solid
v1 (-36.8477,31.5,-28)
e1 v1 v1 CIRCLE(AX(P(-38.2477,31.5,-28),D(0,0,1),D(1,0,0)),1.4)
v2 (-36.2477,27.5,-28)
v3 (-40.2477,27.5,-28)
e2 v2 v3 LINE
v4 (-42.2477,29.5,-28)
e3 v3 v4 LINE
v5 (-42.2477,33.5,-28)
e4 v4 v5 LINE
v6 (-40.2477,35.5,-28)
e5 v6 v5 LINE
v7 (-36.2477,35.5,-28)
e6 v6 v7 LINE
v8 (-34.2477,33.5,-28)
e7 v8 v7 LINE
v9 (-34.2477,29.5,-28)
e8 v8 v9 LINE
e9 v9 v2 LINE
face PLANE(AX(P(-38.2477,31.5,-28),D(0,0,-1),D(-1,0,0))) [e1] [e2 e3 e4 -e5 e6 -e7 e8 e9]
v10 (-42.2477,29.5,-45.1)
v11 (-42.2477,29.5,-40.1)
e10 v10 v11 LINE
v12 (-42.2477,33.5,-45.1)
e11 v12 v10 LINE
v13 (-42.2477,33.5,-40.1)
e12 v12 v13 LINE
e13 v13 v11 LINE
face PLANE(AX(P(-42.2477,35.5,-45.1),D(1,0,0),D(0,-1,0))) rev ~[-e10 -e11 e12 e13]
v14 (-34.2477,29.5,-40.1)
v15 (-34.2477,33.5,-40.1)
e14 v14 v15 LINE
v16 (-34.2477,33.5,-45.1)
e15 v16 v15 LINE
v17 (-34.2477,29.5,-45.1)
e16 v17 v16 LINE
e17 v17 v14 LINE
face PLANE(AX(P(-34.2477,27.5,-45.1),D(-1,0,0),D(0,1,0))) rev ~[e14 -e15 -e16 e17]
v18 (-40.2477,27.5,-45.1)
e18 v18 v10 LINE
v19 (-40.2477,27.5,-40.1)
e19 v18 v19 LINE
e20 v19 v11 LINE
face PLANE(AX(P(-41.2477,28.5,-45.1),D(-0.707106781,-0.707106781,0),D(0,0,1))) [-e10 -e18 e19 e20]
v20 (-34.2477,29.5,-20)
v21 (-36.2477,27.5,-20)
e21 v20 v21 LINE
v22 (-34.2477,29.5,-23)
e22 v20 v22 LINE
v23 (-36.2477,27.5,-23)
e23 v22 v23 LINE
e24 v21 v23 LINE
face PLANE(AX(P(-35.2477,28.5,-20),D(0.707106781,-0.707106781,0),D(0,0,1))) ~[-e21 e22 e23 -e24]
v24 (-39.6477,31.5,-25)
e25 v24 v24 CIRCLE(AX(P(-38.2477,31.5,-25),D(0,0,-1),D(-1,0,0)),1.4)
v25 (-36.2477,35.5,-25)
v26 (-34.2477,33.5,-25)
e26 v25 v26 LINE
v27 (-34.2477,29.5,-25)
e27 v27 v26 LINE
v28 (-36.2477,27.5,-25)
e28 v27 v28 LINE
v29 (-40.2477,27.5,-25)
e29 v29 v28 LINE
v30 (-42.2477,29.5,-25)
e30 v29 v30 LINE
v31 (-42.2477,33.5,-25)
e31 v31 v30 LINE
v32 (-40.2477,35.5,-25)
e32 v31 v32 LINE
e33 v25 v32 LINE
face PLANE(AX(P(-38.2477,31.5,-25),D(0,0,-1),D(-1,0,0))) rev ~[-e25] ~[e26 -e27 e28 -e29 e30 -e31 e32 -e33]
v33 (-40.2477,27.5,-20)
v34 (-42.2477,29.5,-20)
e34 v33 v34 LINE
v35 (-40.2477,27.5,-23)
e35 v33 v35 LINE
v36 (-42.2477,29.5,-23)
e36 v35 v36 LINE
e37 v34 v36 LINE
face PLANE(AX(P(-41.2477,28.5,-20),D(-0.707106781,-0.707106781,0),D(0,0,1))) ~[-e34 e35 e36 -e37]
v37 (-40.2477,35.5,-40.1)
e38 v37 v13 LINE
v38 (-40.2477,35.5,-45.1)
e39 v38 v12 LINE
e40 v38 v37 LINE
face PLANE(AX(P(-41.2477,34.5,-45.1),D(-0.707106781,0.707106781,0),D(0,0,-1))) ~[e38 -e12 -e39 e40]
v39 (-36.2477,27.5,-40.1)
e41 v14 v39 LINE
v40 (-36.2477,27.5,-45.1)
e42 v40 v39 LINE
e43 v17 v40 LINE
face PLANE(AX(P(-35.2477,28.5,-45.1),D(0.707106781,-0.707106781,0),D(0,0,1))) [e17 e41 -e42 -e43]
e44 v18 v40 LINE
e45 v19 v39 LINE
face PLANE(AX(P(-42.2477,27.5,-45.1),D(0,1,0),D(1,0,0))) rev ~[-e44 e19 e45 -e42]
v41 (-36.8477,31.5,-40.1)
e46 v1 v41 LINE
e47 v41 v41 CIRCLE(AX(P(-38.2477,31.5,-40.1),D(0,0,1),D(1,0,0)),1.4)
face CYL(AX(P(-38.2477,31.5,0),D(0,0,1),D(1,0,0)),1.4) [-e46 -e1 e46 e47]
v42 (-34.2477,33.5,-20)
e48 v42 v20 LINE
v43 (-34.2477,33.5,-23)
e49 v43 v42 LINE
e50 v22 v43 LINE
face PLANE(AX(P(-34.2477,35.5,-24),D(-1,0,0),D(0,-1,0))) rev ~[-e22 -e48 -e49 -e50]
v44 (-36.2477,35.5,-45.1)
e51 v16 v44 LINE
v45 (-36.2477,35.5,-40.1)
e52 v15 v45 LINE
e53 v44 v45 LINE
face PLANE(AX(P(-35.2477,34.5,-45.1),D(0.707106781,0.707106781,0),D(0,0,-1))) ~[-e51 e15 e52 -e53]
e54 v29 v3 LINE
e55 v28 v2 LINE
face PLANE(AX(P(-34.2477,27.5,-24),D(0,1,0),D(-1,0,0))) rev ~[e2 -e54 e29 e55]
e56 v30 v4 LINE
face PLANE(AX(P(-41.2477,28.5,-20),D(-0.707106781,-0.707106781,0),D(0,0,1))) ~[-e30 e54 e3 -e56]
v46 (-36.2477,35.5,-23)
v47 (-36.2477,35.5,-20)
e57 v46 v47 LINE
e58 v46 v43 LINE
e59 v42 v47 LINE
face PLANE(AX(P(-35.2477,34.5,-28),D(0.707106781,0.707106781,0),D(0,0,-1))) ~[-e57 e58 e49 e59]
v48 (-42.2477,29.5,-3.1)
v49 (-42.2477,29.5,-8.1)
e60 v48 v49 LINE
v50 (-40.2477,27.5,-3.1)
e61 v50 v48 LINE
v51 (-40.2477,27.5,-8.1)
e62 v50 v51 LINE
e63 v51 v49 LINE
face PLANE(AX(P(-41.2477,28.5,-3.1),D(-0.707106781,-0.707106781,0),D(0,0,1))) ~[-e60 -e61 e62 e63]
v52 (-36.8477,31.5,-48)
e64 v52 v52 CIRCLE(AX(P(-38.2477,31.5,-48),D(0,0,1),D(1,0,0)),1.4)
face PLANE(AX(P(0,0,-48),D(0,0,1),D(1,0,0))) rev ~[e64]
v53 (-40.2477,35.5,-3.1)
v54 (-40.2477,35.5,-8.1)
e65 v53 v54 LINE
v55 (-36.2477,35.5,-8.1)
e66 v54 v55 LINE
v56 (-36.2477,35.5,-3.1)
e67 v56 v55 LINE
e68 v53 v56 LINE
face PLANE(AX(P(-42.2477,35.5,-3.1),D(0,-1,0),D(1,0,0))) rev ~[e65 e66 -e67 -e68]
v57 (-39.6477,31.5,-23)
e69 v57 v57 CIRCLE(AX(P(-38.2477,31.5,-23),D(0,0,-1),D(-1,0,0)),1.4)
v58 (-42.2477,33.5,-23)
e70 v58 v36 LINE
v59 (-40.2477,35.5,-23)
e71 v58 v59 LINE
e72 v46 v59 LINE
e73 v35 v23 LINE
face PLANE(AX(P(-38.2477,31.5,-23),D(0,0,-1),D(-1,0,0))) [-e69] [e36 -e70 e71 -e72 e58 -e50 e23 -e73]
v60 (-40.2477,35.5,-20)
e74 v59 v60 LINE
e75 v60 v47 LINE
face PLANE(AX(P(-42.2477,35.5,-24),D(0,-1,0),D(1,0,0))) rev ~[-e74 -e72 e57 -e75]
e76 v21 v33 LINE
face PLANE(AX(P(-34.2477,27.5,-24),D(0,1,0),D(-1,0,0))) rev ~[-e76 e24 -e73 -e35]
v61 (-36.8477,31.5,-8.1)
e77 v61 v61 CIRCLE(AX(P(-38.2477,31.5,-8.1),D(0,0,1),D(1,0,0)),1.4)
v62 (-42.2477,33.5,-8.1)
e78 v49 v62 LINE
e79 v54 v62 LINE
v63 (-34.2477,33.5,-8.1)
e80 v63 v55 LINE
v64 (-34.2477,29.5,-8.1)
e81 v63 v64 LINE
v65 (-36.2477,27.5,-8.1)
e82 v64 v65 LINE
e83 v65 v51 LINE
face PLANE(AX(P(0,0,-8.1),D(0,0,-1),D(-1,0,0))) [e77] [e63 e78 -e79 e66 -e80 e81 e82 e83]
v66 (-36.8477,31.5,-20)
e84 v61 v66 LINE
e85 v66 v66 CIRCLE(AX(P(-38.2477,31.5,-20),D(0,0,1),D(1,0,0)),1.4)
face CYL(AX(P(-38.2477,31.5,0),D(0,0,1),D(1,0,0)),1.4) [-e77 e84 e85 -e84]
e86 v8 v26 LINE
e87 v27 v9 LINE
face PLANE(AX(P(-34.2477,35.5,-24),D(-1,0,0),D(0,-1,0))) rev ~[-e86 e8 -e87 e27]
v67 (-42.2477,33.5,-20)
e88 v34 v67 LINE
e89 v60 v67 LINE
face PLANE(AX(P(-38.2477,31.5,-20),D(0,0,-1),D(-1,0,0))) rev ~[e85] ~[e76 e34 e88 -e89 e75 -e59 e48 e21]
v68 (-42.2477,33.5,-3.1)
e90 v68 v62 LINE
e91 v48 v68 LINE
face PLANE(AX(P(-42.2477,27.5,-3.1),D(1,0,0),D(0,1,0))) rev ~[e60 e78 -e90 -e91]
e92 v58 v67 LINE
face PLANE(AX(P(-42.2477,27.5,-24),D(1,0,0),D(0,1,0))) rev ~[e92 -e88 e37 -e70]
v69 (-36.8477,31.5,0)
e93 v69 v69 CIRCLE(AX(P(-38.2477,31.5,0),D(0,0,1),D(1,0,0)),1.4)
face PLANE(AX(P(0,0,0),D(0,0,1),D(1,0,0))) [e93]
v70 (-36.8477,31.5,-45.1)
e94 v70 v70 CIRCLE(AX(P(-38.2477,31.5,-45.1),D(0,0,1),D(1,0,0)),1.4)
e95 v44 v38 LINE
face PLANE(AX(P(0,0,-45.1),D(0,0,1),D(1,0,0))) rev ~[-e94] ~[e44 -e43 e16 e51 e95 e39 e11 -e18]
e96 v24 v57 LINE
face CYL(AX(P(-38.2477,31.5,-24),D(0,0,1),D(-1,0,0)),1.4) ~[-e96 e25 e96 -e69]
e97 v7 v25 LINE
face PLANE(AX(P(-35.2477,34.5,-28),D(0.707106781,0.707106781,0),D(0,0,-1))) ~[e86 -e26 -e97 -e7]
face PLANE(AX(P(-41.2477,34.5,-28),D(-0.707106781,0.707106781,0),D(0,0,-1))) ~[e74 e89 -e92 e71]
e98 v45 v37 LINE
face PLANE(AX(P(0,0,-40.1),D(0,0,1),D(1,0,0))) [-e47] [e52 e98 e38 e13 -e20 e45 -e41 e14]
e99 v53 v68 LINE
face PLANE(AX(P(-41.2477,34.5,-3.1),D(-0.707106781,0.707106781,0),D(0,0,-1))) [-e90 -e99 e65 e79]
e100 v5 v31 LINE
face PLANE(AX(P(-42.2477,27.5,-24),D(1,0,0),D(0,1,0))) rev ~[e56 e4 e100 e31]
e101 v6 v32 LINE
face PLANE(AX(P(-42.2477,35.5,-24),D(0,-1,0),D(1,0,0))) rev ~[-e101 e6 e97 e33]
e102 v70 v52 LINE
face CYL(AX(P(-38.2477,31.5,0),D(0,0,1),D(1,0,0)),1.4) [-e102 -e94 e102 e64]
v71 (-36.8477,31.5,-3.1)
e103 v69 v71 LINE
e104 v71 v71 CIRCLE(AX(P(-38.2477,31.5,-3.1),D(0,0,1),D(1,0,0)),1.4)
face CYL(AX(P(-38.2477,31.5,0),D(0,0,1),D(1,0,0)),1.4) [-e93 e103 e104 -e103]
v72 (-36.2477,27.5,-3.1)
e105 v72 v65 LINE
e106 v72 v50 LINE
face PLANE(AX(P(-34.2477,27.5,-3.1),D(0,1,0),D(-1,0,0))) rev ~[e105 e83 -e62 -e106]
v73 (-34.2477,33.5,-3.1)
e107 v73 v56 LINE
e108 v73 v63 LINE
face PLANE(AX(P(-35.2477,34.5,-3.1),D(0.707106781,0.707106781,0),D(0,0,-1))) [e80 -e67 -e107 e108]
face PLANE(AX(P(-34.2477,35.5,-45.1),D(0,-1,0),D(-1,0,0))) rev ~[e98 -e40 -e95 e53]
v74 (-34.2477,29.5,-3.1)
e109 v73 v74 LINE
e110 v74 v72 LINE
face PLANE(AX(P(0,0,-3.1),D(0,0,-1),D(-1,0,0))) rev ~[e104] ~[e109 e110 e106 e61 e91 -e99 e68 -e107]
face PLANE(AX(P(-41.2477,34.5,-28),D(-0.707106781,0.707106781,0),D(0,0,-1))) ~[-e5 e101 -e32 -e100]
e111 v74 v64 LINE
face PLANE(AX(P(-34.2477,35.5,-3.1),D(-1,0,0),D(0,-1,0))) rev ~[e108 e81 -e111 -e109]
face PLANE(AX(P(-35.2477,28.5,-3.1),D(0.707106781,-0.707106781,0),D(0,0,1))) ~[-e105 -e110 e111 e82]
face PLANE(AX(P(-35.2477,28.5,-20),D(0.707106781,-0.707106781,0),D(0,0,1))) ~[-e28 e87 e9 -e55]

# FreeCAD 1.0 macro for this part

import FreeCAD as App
import Part
import Sketcher
from FreeCAD import Vector
Q = App.Units.Quantity


def edges_at(feature, points):
    """Names of the edges that pass closest to the given points."""
    edges = feature.Shape.Edges
    near = lambda p: min(range(len(edges)), key=lambda i: edges[i].distToShape(Part.Vertex(*p))[0])
    return sorted({f"Edge{near(p) + 1}" for p in points})

doc = App.newDocument("Part")
body = doc.addObject("PartDesign::Body", "Body")

# Sketch on XY plane
sketch1 = body.newObject("Sketcher::SketchObject", "Sketch")
sketch1.AttachmentSupport = (doc.getObject("XY_Plane"), [""])
sketch1.MapMode = "FlatFace"
sketch1.addGeometry(Part.Circle(Vector(-38.2, 31.5, 0), Vector(0, 0, 1), 1.4), False)
sketch1.addConstraint([
    Sketcher.Constraint("Diameter", 0, Q("2.8 mm")),
    Sketcher.Constraint("DistanceY", -1, 1, 0, 3, Q("31.5 mm")),
    Sketcher.Constraint("DistanceX", 0, 3, -1, 1, Q("38.2477 mm")),
])
pad1 = body.newObject("PartDesign::Pad", "Pad")
pad1.Profile = sketch1
pad1.Length = 48
pad1.Reversed = True

# Sketch on XY plane
sketch2 = body.newObject("Sketcher::SketchObject", "Sketch001")
sketch2.AttachmentSupport = (doc.getObject("XY_Plane"), [""])
sketch2.MapMode = "FlatFace"
sketch2.AttachmentOffset = App.Placement(Vector(0, 0, -45.1), App.Rotation())
sketch2.addGeometry([
    Part.LineSegment(Vector(-34, 28, 0), Vector(-34, 36, 0)),
    Part.LineSegment(Vector(-34, 36, 0), Vector(-42, 36, 0)),
    Part.LineSegment(Vector(-42, 36, 0), Vector(-42, 28, 0)),
    Part.LineSegment(Vector(-42, 28, 0), Vector(-34, 28, 0)),
], False)
sketch2.addConstraint([
    Sketcher.Constraint("Coincident", 0, 2, 1, 1),
    Sketcher.Constraint("Coincident", 1, 2, 2, 1),
    Sketcher.Constraint("Coincident", 2, 2, 3, 1),
    Sketcher.Constraint("Coincident", 3, 2, 0, 1),
    Sketcher.Constraint("Vertical", 0),
    Sketcher.Constraint("Horizontal", 1),
    Sketcher.Constraint("Vertical", 2),
    Sketcher.Constraint("Horizontal", 3),
    Sketcher.Constraint("Equal", 3, 0),
    Sketcher.Constraint("DistanceX", 1, 2, 1, 1, Q("8 mm")),
    Sketcher.Constraint("DistanceY", -1, 1, 0, 2, Q("35.5 mm")),
    Sketcher.Constraint("DistanceX", 0, 2, -1, 1, Q("34.2477 mm")),
])
pad2 = body.newObject("PartDesign::Pad", "Pad001")
pad2.Profile = sketch2
pad2.Length = 5
doc.recompute()

chamfer = body.newObject("PartDesign::Chamfer", "Chamfer")
chamfer.Base = (pad2, edges_at(pad2, [
    (-42.248, 35.5, -42.6),
    (-34.248, 35.5, -42.6),
    (-34.248, 27.5, -42.6),
    (-42.248, 27.5, -42.6),
]))
chamfer.Size = 2

# Sketch on XY plane
sketch3 = body.newObject("Sketcher::SketchObject", "Sketch002")
sketch3.AttachmentSupport = (doc.getObject("XY_Plane"), [""])
sketch3.MapMode = "FlatFace"
sketch3.AttachmentOffset = App.Placement(Vector(0, 0, -3.1), App.Rotation())
sketch3.addGeometry([
    Part.LineSegment(Vector(-34, 36, 0), Vector(-34, 28, 0)),
    Part.LineSegment(Vector(-34, 28, 0), Vector(-42, 28, 0)),
    Part.LineSegment(Vector(-42, 28, 0), Vector(-42, 36, 0)),
    Part.LineSegment(Vector(-42, 36, 0), Vector(-34, 36, 0)),
], False)
sketch3.addConstraint([
    Sketcher.Constraint("Coincident", 0, 2, 1, 1),
    Sketcher.Constraint("Coincident", 1, 2, 2, 1),
    Sketcher.Constraint("Coincident", 2, 2, 3, 1),
    Sketcher.Constraint("Coincident", 3, 2, 0, 1),
    Sketcher.Constraint("Vertical", 0),
    Sketcher.Constraint("Horizontal", 1),
    Sketcher.Constraint("Vertical", 2),
    Sketcher.Constraint("Horizontal", 3),
    Sketcher.Constraint("Equal", 3, 0),
    Sketcher.Constraint("DistanceX", 1, 2, 1, 1, Q("8 mm")),
    Sketcher.Constraint("DistanceY", -1, 1, 0, 2, Q("27.5 mm")),
    Sketcher.Constraint("DistanceX", 0, 2, -1, 1, Q("34.2477 mm")),
])
pad3 = body.newObject("PartDesign::Pad", "Pad002")
pad3.Profile = sketch3
pad3.Length = 5
pad3.Reversed = True
doc.recompute()

chamfer2 = body.newObject("PartDesign::Chamfer", "Chamfer001")
chamfer2.Base = (pad3, edges_at(pad3, [
    (-42.248, 35.5, -5.6),
    (-34.248, 35.5, -5.6),
    (-34.248, 27.5, -5.6),
    (-42.248, 27.5, -5.6),
]))
chamfer2.Size = 2

# Sketch on XY plane
sketch4 = body.newObject("Sketcher::SketchObject", "Sketch003")
sketch4.AttachmentSupport = (doc.getObject("XY_Plane"), [""])
sketch4.MapMode = "FlatFace"
sketch4.AttachmentOffset = App.Placement(Vector(0, 0, -24), App.Rotation())
sketch4.addGeometry([
    Part.LineSegment(Vector(-34, 36, 0), Vector(-34, 28, 0)),
    Part.LineSegment(Vector(-34, 28, 0), Vector(-42, 28, 0)),
    Part.LineSegment(Vector(-42, 28, 0), Vector(-42, 36, 0)),
    Part.LineSegment(Vector(-42, 36, 0), Vector(-34, 36, 0)),
], False)
sketch4.addConstraint([
    Sketcher.Constraint("Coincident", 0, 2, 1, 1),
    Sketcher.Constraint("Coincident", 1, 2, 2, 1),
    Sketcher.Constraint("Coincident", 2, 2, 3, 1),
    Sketcher.Constraint("Coincident", 3, 2, 0, 1),
    Sketcher.Constraint("Vertical", 0),
    Sketcher.Constraint("Horizontal", 1),
    Sketcher.Constraint("Vertical", 2),
    Sketcher.Constraint("Horizontal", 3),
    Sketcher.Constraint("Equal", 3, 0),
    Sketcher.Constraint("DistanceX", 1, 2, 1, 1, Q("8 mm")),
    Sketcher.Constraint("DistanceY", -1, 1, 0, 2, Q("27.5 mm")),
    Sketcher.Constraint("DistanceX", 0, 2, -1, 1, Q("34.2477 mm")),
])
pad4 = body.newObject("PartDesign::Pad", "Pad003")
pad4.Profile = sketch4
pad4.Length = 8
pad4.Midplane = True
doc.recompute()

chamfer3 = body.newObject("PartDesign::Chamfer", "Chamfer002")
chamfer3.Base = (pad4, edges_at(pad4, [
    (-42.248, 35.5, -24),
    (-42.248, 27.5, -24),
    (-34.248, 35.5, -24),
    (-34.248, 27.5, -24),
]))
chamfer3.Size = 2

# Sketch on XY plane
sketch5 = body.newObject("Sketcher::SketchObject", "Sketch004")
sketch5.AttachmentSupport = (doc.getObject("XY_Plane"), [""])
sketch5.MapMode = "FlatFace"
sketch5.AttachmentOffset = App.Placement(Vector(0, 0, -24), App.Rotation())
sketch5.addGeometry([
    Part.LineSegment(Vector(-42.2, 35.5, 0), Vector(-34.2, 35.5, 0)),  # 0
    Part.LineSegment(Vector(-34.2, 35.5, 0), Vector(-34.2, 27.5, 0)),  # 1
    Part.LineSegment(Vector(-34.2, 27.5, 0), Vector(-42.2, 27.5, 0)),  # 2
    Part.LineSegment(Vector(-42.2, 27.5, 0), Vector(-42.2, 35.5, 0)),  # 3
    Part.Circle(Vector(-38.2, 31.5, 0), Vector(0, 0, 1), 1.4),  # 4
], False)
sketch5.addConstraint([
    Sketcher.Constraint("Coincident", 0, 2, 1, 1),
    Sketcher.Constraint("Coincident", 1, 2, 2, 1),
    Sketcher.Constraint("Coincident", 2, 2, 3, 1),
    Sketcher.Constraint("Coincident", 3, 2, 0, 1),
    Sketcher.Constraint("Horizontal", 0),
    Sketcher.Constraint("Vertical", 1),
    Sketcher.Constraint("Horizontal", 2),
    Sketcher.Constraint("Vertical", 3),
    Sketcher.Constraint("Equal", 2, 1),
    Sketcher.Constraint("DistanceX", 0, 1, 0, 2, Q("8 mm")),
    Sketcher.Constraint("Diameter", 4, Q("2.8 mm")),
    Sketcher.Constraint("DistanceX", 4, 3, 0, 2, Q("4 mm")),
    Sketcher.Constraint("DistanceY", 4, 3, 0, 2, Q("4 mm")),
    Sketcher.Constraint("DistanceY", -1, 1, 4, 3, Q("31.5 mm")),
    Sketcher.Constraint("DistanceX", 4, 3, -1, 1, Q("38.2477 mm")),
])
pocket1 = body.newObject("PartDesign::Pocket", "Pocket")
pocket1.Profile = sketch5
pocket1.Length = 2
pocket1.Midplane = True

doc.recompute()
